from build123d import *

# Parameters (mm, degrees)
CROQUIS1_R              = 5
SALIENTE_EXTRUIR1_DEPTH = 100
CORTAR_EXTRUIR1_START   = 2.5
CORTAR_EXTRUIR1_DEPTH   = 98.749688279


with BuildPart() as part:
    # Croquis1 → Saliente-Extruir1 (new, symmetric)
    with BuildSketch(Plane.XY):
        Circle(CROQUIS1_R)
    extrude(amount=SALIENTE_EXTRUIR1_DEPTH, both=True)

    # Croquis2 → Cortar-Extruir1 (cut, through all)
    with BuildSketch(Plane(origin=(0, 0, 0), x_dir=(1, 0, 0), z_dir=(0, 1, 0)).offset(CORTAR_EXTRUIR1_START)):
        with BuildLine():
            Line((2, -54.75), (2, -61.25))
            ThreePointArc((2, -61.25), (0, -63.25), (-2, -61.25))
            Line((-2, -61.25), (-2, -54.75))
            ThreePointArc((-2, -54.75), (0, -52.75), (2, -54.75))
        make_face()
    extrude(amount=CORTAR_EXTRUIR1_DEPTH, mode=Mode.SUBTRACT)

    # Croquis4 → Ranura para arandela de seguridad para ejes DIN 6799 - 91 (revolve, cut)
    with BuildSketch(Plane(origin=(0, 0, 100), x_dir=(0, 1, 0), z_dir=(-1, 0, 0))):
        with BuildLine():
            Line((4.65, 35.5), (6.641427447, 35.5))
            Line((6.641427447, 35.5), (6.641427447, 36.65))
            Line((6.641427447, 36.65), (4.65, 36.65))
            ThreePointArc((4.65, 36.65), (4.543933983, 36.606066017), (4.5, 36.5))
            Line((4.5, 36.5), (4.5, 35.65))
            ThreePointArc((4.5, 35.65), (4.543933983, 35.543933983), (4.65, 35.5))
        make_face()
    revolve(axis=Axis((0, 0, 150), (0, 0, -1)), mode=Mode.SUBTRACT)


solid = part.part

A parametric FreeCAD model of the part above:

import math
import FreeCAD as App
import Part
import Sketcher

V = App.Vector
Q = App.Units.Quantity

doc = App.newDocument("Part")
body = doc.addObject("PartDesign::Body", "Body")

sketch1 = doc.addObject("Sketcher::SketchObject", "Sketch")
body.addObject(sketch1)
sketch1.AttachmentSupport = (doc.XY_Plane, [""])
sketch1.MapMode = "FlatFace"
sketch1.addGeometry(Part.Circle(V(0, 0, 0), V(0, 0, 1), 5), False)
sketch1.addConstraint([
    Sketcher.Constraint("Coincident", 0, 3, -1, 1),
    Sketcher.Constraint("Diameter", 0, Q("10 mm")),
])
pad1 = doc.addObject("PartDesign::Pad", "Pad")
body.addObject(pad1)
pad1.Profile = sketch1
pad1.Length = 200
pad1.Midplane = True

sketch2 = doc.addObject("Sketcher::SketchObject", "Sketch001")
body.addObject(sketch2)
sketch2.AttachmentSupport = (doc.XZ_Plane, [""])
sketch2.MapMode = "FlatFace"
sketch2.AttachmentOffset = App.Placement(V(0, 0, -2.5), App.Rotation())
sketch2.addGeometry([
    Part.LineSegment(V(2, 61.2, 0), V(2, 54.8, 0)),
    Part.ArcOfCircle(Part.Circle(V(0, 54.8, 0), V(0, 0, 1), 2), math.radians(180), math.radians(360)),
    Part.LineSegment(V(-2, 54.8, 0), V(-2, 61.2, 0)),
    Part.ArcOfCircle(Part.Circle(V(0, 61.2, 0), V(0, 0, 1), 2), math.radians(0), math.radians(180)),
], False)
sketch2.addConstraint([
    Sketcher.Constraint("Tangent", 0, 2, 1, 2),
    Sketcher.Constraint("Tangent", 1, 1, 2, 1),
    Sketcher.Constraint("Tangent", 2, 2, 3, 2),
    Sketcher.Constraint("Tangent", 3, 1, 0, 1),
    Sketcher.Constraint("Vertical", 0),
    Sketcher.Constraint("Vertical", 2),
    Sketcher.Constraint("PointOnObject", 1, 3, -2),
    Sketcher.Constraint("Radius", 1, Q("2 mm")),
    Sketcher.Constraint("DistanceY", 0, 2, 0, 1, Q("6.5 mm")),
    Sketcher.Constraint("DistanceY", -1, 1, 1, 3, Q("54.75 mm")),
])
pocket1 = doc.addObject("PartDesign::Pocket", "Pocket")
body.addObject(pocket1)
pocket1.Profile = sketch2
pocket1.Type = "ThroughAll"

sketch3 = doc.addObject("Sketcher::SketchObject", "Sketch002")
body.addObject(sketch3)
sketch3.AttachmentSupport = (doc.YZ_Plane, [""])
sketch3.MapMode = "FlatFace"
sketch3.addGeometry([
    Part.LineSegment(V(4.65, 64.5, 0), V(6.64, 64.5, 0)),
    Part.LineSegment(V(6.64, 64.5, 0), V(6.64, 63.35, 0)),
    Part.LineSegment(V(6.64, 63.35, 0), V(4.65, 63.35, 0)),
    Part.ArcOfCircle(Part.Circle(V(4.65, 63.5, 0), V(0, 0, 1), 0.15), math.radians(-180), math.radians(-90)),
    Part.LineSegment(V(4.5, 63.5, 0), V(4.5, 64.35, 0)),
    Part.ArcOfCircle(Part.Circle(V(4.65, 64.35, 0), V(0, 0, 1), 0.15), math.radians(90), math.radians(180)),
], False)
sketch3.addConstraint([
    Sketcher.Constraint("Coincident", 0, 2, 1, 1),
    Sketcher.Constraint("Coincident", 1, 2, 2, 1),
    Sketcher.Constraint("Tangent", 2, 2, 3, 2),
    Sketcher.Constraint("Tangent", 3, 1, 4, 1),
    Sketcher.Constraint("Tangent", 4, 2, 5, 2),
    Sketcher.Constraint("Tangent", 5, 1, 0, 1),
    Sketcher.Constraint("Horizontal", 0),
    Sketcher.Constraint("Vertical", 1),
    Sketcher.Constraint("Horizontal", 2),
    Sketcher.Constraint("Vertical", 4),
    Sketcher.Constraint("Equal", 3, 5),
    Sketcher.Constraint("Radius", 3, Q("0.15 mm")),
    Sketcher.Constraint("DistanceY", 3, 3, 0, 2, Q("1 mm")),
    Sketcher.Constraint("DistanceY", -1, 1, 3, 3, Q("63.5 mm")),
    Sketcher.Constraint("DistanceX", -1, 1, 3, 1, Q("4.5 mm")),
    Sketcher.Constraint("DistanceX", 0, 1, 0, 2, Q("1.991427 mm")),
])
groove = doc.addObject("PartDesign::Groove", "Groove")
body.addObject(groove)
groove.Profile = sketch3
groove.ReferenceAxis = (sketch3, ["V_Axis"])
groove.Angle = 360

doc.recompute()
